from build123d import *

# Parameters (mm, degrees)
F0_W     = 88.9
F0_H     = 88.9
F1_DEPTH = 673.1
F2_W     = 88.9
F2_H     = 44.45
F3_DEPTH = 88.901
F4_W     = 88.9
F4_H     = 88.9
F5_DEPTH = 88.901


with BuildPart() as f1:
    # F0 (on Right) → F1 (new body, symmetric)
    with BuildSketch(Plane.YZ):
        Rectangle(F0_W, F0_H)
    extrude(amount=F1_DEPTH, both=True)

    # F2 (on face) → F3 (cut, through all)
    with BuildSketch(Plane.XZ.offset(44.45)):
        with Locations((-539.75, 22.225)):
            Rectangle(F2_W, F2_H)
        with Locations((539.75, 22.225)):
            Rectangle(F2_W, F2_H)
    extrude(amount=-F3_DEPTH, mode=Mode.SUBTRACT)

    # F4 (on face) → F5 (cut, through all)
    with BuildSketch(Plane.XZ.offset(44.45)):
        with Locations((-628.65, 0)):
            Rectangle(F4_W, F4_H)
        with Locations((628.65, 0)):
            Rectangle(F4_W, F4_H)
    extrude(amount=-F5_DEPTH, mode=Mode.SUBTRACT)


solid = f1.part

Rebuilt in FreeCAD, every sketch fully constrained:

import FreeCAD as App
import Part
import Sketcher
from FreeCAD import Vector
Q = App.Units.Quantity

doc = App.newDocument("Part")
body = doc.addObject("PartDesign::Body", "Body")

# Sketch on YZ plane
sketch1 = body.newObject("Sketcher::SketchObject", "Sketch")
sketch1.AttachmentSupport = (doc.getObject("YZ_Plane"), [""])
sketch1.MapMode = "FlatFace"
sketch1.addGeometry(Part.LineSegment(Vector(-44.45, 44.45, 0), Vector(-44.45, -44.45, 0)), False)
sketch1.addGeometry(Part.LineSegment(Vector(-44.45, -44.45, 0), Vector(44.45, -44.45, 0)), False)
sketch1.addGeometry(Part.LineSegment(Vector(44.45, -44.45, 0), Vector(44.45, 44.45, 0)), False)
sketch1.addGeometry(Part.LineSegment(Vector(44.45, 44.45, 0), Vector(-44.45, 44.45, 0)), False)
sketch1.addConstraint(Sketcher.Constraint("Coincident", 0, 2, 1, 1))
sketch1.addConstraint(Sketcher.Constraint("Coincident", 1, 2, 2, 1))
sketch1.addConstraint(Sketcher.Constraint("Coincident", 2, 2, 3, 1))
sketch1.addConstraint(Sketcher.Constraint("Coincident", 3, 2, 0, 1))
sketch1.addConstraint(Sketcher.Constraint("Vertical", 0))
sketch1.addConstraint(Sketcher.Constraint("Horizontal", 1))
sketch1.addConstraint(Sketcher.Constraint("Vertical", 2))
sketch1.addConstraint(Sketcher.Constraint("Horizontal", 3))
sketch1.addConstraint(Sketcher.Constraint("Symmetric", 0, 2, 2, 2, -1, 1))
sketch1.addConstraint(Sketcher.Constraint("Equal", 3, 0))
sketch1.addConstraint(Sketcher.Constraint("DistanceX", 1, 1, 1, 2, Q("3.5 in")))
pad1 = body.newObject("PartDesign::Pad", "Pad")
pad1.Profile = sketch1
pad1.Length = Q("53 in")
pad1.Midplane = True

# Sketch on XZ plane
sketch2 = body.newObject("Sketcher::SketchObject", "Sketch001")
sketch2.AttachmentSupport = (doc.getObject("XZ_Plane"), [""])
sketch2.MapMode = "FlatFace"
sketch2.AttachmentOffset = App.Placement(Vector(0, 0, 1.75 * 25.4), App.Rotation())
sketch2.addGeometry(Part.LineSegment(Vector(-584.2, 44.45, 0), Vector(-584.2, 0, 0)), False)
sketch2.addGeometry(Part.LineSegment(Vector(-584.2, 0, 0), Vector(-495.3, 0, 0)), False)
sketch2.addGeometry(Part.LineSegment(Vector(-495.3, 0, 0), Vector(-495.3, 44.45, 0)), False)
sketch2.addGeometry(Part.LineSegment(Vector(-495.3, 44.45, 0), Vector(-584.2, 44.45, 0)), False)
sketch2.addGeometry(Part.LineSegment(Vector(495.3, 44.45, 0), Vector(495.3, 0, 0)), False)
sketch2.addGeometry(Part.LineSegment(Vector(495.3, 0, 0), Vector(584.2, 0, 0)), False)
sketch2.addGeometry(Part.LineSegment(Vector(584.2, 0, 0), Vector(584.2, 44.45, 0)), False)
sketch2.addGeometry(Part.LineSegment(Vector(584.2, 44.45, 0), Vector(495.3, 44.45, 0)), False)
sketch2.addConstraint(Sketcher.Constraint("Coincident", 0, 2, 1, 1))
sketch2.addConstraint(Sketcher.Constraint("Coincident", 1, 2, 2, 1))
sketch2.addConstraint(Sketcher.Constraint("Coincident", 2, 2, 3, 1))
sketch2.addConstraint(Sketcher.Constraint("Coincident", 3, 2, 0, 1))
sketch2.addConstraint(Sketcher.Constraint("Coincident", 4, 2, 5, 1))
sketch2.addConstraint(Sketcher.Constraint("Coincident", 5, 2, 6, 1))
sketch2.addConstraint(Sketcher.Constraint("Coincident", 6, 2, 7, 1))
sketch2.addConstraint(Sketcher.Constraint("Coincident", 7, 2, 4, 1))
sketch2.addConstraint(Sketcher.Constraint("Vertical", 0))
sketch2.addConstraint(Sketcher.Constraint("Horizontal", 1))
sketch2.addConstraint(Sketcher.Constraint("Vertical", 2))
sketch2.addConstraint(Sketcher.Constraint("Horizontal", 3))
sketch2.addConstraint(Sketcher.Constraint("Vertical", 4))
sketch2.addConstraint(Sketcher.Constraint("Horizontal", 5))
sketch2.addConstraint(Sketcher.Constraint("Vertical", 6))
sketch2.addConstraint(Sketcher.Constraint("Horizontal", 7))
sketch2.addConstraint(Sketcher.Constraint("Symmetric", 1, 2, 4, 2, -1, 1))
sketch2.addConstraint(Sketcher.Constraint("Symmetric", 0, 2, 5, 2, -2))
sketch2.addConstraint(Sketcher.Constraint("Horizontal", 3, 2, 6, 2))
sketch2.addConstraint(Sketcher.Constraint("DistanceX", 1, 1, 1, 2, Q("3.5 in")))
sketch2.addConstraint(Sketcher.Constraint("DistanceX", 0, 2, -1, 1, Q("23 in")))
sketch2.addConstraint(Sketcher.Constraint("DistanceY", 0, 2, 0, 1, Q("1.75 in")))
pocket1 = body.newObject("PartDesign::Pocket", "Pocket")
pocket1.Profile = sketch2
pocket1.Type = "ThroughAll"

# Sketch on XZ plane
sketch3 = body.newObject("Sketcher::SketchObject", "Sketch002")
sketch3.AttachmentSupport = (doc.getObject("XZ_Plane"), [""])
sketch3.MapMode = "FlatFace"
sketch3.AttachmentOffset = App.Placement(Vector(0, 0, 1.75 * 25.4), App.Rotation())
sketch3.addGeometry(Part.LineSegment(Vector(-673.1, 44.45, 0), Vector(-673.1, -44.45, 0)), False)
sketch3.addGeometry(Part.LineSegment(Vector(-673.1, -44.45, 0), Vector(-584.2, -44.45, 0)), False)
sketch3.addGeometry(Part.LineSegment(Vector(-584.2, -44.45, 0), Vector(-584.2, 44.45, 0)), False)
sketch3.addGeometry(Part.LineSegment(Vector(-584.2, 44.45, 0), Vector(-673.1, 44.45, 0)), False)
sketch3.addGeometry(Part.LineSegment(Vector(584.2, 44.45, 0), Vector(584.2, -44.45, 0)), False)
sketch3.addGeometry(Part.LineSegment(Vector(584.2, -44.45, 0), Vector(673.1, -44.45, 0)), False)
sketch3.addGeometry(Part.LineSegment(Vector(673.1, -44.45, 0), Vector(673.1, 44.45, 0)), False)
sketch3.addGeometry(Part.LineSegment(Vector(673.1, 44.45, 0), Vector(584.2, 44.45, 0)), False)
sketch3.addConstraint(Sketcher.Constraint("Coincident", 0, 2, 1, 1))
sketch3.addConstraint(Sketcher.Constraint("Coincident", 1, 2, 2, 1))
sketch3.addConstraint(Sketcher.Constraint("Coincident", 2, 2, 3, 1))
sketch3.addConstraint(Sketcher.Constraint("Coincident", 3, 2, 0, 1))
sketch3.addConstraint(Sketcher.Constraint("Coincident", 4, 2, 5, 1))
sketch3.addConstraint(Sketcher.Constraint("Coincident", 5, 2, 6, 1))
sketch3.addConstraint(Sketcher.Constraint("Coincident", 6, 2, 7, 1))
sketch3.addConstraint(Sketcher.Constraint("Coincident", 7, 2, 4, 1))
sketch3.addConstraint(Sketcher.Constraint("Vertical", 0))
sketch3.addConstraint(Sketcher.Constraint("Horizontal", 1))
sketch3.addConstraint(Sketcher.Constraint("Vertical", 2))
sketch3.addConstraint(Sketcher.Constraint("Horizontal", 3))
sketch3.addConstraint(Sketcher.Constraint("Vertical", 4))
sketch3.addConstraint(Sketcher.Constraint("Horizontal", 5))
sketch3.addConstraint(Sketcher.Constraint("Vertical", 6))
sketch3.addConstraint(Sketcher.Constraint("Horizontal", 7))
sketch3.addConstraint(Sketcher.Constraint("Symmetric", 2, 2, 4, 2, -1, 1))
sketch3.addConstraint(Sketcher.Constraint("Symmetric", 0, 2, 6, 2, -1, 1))
sketch3.addConstraint(Sketcher.Constraint("Horizontal", 1, 2, 4, 2))
sketch3.addConstraint(Sketcher.Constraint("Equal", 7, 0))
sketch3.addConstraint(Sketcher.Constraint("DistanceX", 1, 1, 1, 2, Q("3.5 in")))
sketch3.addConstraint(Sketcher.Constraint("DistanceX", 1, 2, -1, 1, Q("23 in")))
pocket2 = body.newObject("PartDesign::Pocket", "Pocket001")
pocket2.Profile = sketch3
pocket2.Type = "ThroughAll"

doc.recompute()
